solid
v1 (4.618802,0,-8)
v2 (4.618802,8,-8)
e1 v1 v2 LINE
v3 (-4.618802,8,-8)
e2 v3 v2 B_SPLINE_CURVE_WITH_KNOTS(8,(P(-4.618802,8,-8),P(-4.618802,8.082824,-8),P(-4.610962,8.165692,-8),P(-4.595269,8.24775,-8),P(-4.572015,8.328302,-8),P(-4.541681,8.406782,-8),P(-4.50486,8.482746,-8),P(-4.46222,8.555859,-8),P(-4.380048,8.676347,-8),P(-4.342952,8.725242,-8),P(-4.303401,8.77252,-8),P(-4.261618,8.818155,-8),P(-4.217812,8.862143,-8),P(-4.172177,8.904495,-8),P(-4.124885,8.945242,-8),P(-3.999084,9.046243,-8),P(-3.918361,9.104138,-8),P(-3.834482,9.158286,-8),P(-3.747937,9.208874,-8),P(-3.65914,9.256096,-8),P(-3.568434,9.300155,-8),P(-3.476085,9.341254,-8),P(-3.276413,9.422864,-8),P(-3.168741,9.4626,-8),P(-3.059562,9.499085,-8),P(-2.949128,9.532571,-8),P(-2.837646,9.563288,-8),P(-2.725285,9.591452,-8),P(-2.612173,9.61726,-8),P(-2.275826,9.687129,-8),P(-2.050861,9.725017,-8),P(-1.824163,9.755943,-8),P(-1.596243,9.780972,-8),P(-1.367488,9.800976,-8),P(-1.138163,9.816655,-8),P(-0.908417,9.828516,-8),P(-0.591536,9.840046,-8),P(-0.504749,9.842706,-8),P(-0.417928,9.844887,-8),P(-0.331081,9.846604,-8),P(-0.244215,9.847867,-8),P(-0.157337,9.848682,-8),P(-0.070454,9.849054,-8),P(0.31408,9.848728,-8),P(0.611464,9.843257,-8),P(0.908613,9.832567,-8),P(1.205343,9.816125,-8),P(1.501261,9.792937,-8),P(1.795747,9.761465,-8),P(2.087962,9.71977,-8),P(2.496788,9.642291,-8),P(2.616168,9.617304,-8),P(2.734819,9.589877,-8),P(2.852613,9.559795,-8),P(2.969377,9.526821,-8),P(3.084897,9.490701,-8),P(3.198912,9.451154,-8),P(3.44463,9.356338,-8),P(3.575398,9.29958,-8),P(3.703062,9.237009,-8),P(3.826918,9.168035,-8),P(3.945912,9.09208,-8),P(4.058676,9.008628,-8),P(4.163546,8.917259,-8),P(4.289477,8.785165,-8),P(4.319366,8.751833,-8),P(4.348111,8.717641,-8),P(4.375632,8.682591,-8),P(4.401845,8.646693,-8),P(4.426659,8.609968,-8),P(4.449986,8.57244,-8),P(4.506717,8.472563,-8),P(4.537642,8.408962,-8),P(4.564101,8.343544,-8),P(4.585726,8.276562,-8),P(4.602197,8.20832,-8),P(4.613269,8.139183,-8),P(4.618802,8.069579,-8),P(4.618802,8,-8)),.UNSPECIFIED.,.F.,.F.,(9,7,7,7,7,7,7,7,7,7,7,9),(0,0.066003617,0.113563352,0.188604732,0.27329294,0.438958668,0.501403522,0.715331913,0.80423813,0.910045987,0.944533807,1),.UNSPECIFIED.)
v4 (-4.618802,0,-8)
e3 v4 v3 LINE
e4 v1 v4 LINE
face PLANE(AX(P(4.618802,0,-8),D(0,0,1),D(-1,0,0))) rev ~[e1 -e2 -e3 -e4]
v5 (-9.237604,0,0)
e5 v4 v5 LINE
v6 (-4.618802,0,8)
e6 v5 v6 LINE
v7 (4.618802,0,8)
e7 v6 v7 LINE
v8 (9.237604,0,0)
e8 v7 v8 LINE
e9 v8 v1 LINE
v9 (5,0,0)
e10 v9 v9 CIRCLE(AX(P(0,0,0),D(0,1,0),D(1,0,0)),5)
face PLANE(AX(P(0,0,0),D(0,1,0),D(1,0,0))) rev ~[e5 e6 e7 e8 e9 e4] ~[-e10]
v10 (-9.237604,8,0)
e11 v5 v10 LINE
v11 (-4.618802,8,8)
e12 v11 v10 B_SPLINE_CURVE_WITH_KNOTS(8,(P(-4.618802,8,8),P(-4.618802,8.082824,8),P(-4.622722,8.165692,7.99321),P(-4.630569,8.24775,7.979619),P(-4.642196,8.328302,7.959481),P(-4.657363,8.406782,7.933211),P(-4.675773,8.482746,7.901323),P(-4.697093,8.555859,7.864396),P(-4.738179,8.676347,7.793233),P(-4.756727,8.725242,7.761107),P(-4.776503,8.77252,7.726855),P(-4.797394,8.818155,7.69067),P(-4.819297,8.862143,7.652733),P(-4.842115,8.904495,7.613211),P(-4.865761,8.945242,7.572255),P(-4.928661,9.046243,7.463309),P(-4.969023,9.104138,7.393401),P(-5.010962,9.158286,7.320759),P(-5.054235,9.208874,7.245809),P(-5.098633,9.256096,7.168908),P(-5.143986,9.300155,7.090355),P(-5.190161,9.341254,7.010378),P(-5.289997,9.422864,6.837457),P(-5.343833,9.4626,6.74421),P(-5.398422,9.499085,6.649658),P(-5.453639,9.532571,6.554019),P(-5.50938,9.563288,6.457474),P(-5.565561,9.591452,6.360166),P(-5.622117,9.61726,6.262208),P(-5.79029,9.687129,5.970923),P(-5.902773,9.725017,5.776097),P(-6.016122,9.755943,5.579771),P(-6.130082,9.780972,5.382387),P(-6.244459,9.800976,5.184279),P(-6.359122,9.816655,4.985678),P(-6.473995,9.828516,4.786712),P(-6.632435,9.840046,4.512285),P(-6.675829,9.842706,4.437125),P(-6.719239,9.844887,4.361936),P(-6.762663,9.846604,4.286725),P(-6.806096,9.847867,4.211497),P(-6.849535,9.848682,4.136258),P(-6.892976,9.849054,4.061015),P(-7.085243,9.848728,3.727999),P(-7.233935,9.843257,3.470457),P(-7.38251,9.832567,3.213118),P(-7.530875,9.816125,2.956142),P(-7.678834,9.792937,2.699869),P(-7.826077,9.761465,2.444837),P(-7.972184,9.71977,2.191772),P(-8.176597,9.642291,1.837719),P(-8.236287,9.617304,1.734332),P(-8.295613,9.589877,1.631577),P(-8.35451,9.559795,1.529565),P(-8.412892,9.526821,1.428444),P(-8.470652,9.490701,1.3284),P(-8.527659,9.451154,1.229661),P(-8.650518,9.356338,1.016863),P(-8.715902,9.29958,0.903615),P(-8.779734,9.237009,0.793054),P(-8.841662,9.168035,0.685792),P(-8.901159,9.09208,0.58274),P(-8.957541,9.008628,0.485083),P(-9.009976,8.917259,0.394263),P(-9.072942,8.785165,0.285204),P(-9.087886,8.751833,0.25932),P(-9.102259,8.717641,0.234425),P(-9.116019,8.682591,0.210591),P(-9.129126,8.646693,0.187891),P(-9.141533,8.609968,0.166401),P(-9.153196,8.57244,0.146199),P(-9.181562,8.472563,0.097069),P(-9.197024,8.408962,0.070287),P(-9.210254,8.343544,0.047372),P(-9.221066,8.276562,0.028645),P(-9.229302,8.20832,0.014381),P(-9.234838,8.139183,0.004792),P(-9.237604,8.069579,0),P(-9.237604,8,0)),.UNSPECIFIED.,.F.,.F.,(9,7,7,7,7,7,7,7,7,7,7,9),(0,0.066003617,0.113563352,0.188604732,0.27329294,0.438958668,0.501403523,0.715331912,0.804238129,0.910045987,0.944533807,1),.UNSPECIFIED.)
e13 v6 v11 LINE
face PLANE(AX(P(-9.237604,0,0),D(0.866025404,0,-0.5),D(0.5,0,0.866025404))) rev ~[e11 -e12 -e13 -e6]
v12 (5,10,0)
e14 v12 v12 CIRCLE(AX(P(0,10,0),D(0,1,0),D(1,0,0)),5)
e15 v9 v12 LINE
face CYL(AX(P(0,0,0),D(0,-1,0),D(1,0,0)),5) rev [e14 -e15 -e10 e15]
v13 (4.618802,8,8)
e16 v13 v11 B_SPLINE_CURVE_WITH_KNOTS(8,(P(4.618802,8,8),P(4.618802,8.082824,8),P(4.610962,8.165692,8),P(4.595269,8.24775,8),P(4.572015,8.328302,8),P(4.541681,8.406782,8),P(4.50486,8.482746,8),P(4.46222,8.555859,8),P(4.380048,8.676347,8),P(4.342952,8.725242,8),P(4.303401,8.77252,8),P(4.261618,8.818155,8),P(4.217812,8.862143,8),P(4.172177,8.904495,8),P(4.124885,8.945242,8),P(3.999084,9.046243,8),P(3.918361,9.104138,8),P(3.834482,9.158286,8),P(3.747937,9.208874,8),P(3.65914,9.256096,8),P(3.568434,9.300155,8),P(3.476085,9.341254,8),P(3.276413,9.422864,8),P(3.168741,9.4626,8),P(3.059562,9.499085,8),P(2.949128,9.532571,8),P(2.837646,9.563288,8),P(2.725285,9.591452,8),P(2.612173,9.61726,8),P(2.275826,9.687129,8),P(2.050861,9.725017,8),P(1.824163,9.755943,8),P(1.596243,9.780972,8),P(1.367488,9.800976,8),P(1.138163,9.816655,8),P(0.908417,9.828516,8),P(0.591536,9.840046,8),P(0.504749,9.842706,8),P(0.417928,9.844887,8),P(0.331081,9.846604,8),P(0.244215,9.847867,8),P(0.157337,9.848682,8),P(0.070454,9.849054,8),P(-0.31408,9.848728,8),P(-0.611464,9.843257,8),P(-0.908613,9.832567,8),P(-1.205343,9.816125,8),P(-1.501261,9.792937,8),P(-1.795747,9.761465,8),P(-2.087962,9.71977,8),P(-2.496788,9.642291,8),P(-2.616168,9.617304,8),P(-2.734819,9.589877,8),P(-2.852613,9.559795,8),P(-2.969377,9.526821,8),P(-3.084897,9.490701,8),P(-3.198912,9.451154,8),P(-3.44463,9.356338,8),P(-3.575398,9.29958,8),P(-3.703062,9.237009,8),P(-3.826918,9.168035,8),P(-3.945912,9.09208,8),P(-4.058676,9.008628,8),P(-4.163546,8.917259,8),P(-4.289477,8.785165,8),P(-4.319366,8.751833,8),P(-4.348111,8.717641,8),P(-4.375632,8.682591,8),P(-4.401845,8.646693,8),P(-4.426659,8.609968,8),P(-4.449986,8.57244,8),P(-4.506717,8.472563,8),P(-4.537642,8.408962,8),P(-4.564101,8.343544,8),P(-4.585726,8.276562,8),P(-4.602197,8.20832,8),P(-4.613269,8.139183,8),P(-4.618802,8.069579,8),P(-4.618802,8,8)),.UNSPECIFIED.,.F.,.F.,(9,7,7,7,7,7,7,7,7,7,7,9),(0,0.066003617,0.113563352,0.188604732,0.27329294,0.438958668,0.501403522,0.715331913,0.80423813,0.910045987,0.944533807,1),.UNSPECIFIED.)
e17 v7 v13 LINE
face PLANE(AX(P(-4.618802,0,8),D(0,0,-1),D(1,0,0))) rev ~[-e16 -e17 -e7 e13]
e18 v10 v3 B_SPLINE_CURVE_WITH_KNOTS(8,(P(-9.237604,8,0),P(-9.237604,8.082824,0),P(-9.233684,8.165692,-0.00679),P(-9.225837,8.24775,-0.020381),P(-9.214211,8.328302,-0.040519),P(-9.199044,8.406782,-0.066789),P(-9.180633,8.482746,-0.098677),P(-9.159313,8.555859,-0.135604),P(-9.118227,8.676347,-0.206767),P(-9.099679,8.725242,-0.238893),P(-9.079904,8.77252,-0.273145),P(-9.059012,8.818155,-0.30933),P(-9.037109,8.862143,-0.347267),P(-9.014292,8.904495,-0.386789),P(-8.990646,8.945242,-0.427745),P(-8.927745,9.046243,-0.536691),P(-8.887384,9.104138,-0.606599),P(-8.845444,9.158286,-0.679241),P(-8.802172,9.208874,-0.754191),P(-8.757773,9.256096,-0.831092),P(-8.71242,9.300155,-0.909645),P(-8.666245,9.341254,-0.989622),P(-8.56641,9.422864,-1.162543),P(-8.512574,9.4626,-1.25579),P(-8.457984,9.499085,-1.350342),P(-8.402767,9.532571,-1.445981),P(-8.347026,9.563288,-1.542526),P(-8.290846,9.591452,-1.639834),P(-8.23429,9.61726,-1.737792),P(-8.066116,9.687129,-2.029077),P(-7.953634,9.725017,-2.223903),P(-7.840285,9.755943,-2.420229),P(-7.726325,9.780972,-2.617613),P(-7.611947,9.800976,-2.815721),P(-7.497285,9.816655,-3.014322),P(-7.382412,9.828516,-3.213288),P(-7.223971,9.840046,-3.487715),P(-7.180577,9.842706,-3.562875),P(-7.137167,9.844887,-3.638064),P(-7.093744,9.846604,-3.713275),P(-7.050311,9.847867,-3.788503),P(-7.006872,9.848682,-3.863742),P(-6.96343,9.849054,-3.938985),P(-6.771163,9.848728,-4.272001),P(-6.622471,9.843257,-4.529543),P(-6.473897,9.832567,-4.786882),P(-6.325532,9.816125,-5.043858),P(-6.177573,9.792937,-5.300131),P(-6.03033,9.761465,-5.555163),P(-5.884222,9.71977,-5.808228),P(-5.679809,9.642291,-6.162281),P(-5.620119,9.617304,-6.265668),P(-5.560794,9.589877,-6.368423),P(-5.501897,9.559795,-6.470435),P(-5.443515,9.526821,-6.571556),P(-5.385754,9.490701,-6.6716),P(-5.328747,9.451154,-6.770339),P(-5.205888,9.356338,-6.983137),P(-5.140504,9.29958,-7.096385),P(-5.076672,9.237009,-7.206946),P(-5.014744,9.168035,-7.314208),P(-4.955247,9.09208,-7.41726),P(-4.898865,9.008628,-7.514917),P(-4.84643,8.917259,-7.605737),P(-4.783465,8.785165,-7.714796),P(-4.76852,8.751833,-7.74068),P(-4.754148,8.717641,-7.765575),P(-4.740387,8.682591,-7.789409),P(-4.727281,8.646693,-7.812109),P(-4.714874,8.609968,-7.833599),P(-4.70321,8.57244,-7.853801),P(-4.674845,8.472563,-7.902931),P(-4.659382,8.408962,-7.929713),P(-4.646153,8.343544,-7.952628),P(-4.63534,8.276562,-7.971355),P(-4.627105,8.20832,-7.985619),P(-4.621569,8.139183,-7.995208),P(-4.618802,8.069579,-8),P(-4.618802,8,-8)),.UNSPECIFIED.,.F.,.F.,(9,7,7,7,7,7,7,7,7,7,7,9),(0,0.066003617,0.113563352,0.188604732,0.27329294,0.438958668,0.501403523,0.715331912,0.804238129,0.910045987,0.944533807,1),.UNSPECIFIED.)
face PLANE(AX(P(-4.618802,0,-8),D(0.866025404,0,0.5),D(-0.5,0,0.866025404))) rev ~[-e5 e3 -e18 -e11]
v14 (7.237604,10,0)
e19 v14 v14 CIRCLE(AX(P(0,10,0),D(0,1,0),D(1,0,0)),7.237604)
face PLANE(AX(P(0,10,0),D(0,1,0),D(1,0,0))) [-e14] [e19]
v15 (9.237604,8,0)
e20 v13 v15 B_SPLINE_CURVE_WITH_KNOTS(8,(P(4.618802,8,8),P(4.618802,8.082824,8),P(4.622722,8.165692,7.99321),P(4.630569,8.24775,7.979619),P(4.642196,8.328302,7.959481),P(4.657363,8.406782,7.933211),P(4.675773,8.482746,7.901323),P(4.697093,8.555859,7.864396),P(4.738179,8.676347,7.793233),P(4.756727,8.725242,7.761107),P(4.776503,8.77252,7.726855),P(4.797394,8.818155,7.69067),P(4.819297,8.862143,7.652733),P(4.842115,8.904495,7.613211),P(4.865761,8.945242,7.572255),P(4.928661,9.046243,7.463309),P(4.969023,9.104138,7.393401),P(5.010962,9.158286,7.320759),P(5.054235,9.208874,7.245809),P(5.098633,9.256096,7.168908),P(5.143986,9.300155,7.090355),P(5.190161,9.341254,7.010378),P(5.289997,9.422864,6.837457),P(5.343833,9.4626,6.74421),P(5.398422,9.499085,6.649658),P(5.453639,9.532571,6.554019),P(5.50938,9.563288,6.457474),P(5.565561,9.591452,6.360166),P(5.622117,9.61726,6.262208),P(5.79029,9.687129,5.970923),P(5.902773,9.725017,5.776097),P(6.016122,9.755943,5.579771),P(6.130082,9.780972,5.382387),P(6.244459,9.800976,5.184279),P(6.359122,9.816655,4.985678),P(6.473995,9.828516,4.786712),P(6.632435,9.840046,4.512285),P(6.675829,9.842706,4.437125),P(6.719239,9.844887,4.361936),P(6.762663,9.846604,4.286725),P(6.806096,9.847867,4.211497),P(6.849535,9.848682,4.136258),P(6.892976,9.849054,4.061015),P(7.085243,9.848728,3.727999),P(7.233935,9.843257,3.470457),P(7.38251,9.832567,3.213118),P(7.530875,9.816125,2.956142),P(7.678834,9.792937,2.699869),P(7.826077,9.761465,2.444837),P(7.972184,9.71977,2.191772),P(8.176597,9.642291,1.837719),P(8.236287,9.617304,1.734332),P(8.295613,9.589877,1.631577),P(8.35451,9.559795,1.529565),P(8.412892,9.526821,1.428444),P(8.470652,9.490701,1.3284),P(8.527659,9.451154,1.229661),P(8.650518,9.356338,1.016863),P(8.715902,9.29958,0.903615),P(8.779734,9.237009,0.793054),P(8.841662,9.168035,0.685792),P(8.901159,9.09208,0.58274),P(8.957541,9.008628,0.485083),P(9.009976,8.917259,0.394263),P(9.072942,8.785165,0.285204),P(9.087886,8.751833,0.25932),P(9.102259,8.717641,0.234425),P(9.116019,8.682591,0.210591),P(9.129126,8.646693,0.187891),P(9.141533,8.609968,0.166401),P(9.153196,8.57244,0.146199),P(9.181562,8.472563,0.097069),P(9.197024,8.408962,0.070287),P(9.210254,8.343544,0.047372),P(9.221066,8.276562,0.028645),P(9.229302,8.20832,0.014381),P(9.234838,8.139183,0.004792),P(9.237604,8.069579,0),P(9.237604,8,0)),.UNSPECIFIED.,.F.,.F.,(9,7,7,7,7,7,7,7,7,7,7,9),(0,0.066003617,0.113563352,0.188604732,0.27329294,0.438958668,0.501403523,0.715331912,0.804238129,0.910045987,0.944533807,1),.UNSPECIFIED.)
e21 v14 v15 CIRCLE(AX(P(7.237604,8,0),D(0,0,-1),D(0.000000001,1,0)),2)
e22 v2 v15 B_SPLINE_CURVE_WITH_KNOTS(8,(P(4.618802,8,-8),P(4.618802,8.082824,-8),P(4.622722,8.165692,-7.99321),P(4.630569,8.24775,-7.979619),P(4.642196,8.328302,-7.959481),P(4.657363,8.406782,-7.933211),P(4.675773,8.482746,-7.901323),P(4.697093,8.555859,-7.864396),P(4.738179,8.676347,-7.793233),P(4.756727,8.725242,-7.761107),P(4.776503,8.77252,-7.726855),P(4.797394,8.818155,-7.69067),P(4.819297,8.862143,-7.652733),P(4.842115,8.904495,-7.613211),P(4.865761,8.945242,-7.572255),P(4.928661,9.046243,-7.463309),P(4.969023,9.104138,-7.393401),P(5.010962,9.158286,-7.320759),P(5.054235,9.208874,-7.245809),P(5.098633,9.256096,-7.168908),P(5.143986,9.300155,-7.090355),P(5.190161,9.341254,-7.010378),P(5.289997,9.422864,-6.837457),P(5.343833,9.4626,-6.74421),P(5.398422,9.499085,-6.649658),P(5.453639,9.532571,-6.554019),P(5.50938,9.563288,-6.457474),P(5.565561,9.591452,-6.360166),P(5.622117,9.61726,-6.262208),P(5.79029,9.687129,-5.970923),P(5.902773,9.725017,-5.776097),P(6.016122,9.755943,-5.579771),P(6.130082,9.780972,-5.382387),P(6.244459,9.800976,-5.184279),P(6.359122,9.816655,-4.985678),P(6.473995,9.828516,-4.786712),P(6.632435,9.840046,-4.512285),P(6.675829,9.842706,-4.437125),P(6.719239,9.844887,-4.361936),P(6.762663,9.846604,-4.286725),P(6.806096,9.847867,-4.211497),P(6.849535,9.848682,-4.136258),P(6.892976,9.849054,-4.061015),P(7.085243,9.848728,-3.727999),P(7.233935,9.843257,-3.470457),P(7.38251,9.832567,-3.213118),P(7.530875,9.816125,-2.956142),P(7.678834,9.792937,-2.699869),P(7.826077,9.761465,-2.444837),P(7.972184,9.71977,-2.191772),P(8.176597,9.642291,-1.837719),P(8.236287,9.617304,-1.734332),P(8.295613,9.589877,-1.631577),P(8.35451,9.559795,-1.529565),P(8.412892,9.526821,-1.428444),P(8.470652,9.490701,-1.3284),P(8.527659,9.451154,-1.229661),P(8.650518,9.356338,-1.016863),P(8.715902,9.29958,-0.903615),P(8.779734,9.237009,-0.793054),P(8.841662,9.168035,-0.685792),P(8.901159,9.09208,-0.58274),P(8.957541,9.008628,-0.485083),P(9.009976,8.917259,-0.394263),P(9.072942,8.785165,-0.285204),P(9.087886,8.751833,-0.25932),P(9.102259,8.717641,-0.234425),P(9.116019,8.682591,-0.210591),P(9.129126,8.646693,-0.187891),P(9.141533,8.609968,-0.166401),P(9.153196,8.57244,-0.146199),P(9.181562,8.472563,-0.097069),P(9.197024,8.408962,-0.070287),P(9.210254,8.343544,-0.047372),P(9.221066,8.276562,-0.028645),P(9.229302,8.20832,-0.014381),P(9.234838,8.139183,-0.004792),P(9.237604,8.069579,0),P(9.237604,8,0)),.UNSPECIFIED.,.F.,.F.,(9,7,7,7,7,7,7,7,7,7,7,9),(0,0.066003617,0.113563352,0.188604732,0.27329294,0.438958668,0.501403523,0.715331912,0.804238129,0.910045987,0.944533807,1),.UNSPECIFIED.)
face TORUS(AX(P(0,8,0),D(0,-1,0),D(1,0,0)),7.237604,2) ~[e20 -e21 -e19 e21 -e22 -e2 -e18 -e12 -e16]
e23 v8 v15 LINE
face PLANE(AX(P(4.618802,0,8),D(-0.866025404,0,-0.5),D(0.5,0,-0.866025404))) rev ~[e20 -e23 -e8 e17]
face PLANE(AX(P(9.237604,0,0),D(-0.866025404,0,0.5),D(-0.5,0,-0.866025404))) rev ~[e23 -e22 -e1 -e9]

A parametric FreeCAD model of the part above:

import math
import FreeCAD as App
import Part
import Sketcher
from FreeCAD import Vector
Q = App.Units.Quantity

doc = App.newDocument("Part")
body = doc.addObject("PartDesign::Body", "Body")

# Sketch on XZ plane
sketch1 = body.newObject("Sketcher::SketchObject", "Sketch")
sketch1.AttachmentSupport = (doc.getObject("XZ_Plane"), [""])
sketch1.MapMode = "FlatFace"
sketch1.addGeometry([
    Part.LineSegment(Vector(9.237604, 0, 0), Vector(4.618802, -8, 0)),  # 0
    Part.LineSegment(Vector(4.618802, -8, 0), Vector(-4.618802, -8, 0)),  # 1
    Part.LineSegment(Vector(-4.618802, -8, 0), Vector(-9.237604, 0, 0)),  # 2
    Part.LineSegment(Vector(-9.237604, 0, 0), Vector(-4.618802, 8, 0)),  # 3
    Part.LineSegment(Vector(-4.618802, 8, 0), Vector(4.618802, 8, 0)),  # 4
    Part.LineSegment(Vector(4.618802, 8, 0), Vector(9.237604, 0, 0)),  # 5
    Part.Circle(Vector(0, 0, 0), Vector(0, 0, 1), 5),  # 6
], False)
sketch1.addConstraint([
    Sketcher.Constraint("Coincident", 0, 2, 1, 1),
    Sketcher.Constraint("Coincident", 1, 2, 2, 1),
    Sketcher.Constraint("Coincident", 2, 2, 3, 1),
    Sketcher.Constraint("Coincident", 3, 2, 4, 1),
    Sketcher.Constraint("Coincident", 4, 2, 5, 1),
    Sketcher.Constraint("Coincident", 5, 2, 0, 1),
    Sketcher.Constraint("Horizontal", 1),
    Sketcher.Constraint("Horizontal", 4),
    Sketcher.Constraint("Coincident", 6, 3, -1, 1),
    Sketcher.Constraint("Symmetric", 0, 2, 3, 2, -1, 1),
    Sketcher.Constraint("Symmetric", 2, 2, 5, 2, -1, 1),
    Sketcher.Constraint("PointOnObject", 2, 2, -1),
    Sketcher.Constraint("Parallel", 2, 5),
    Sketcher.Constraint("Vertical", 1, 2, 3, 2),
    Sketcher.Constraint("Diameter", 6, Q("10 mm")),
    Sketcher.Constraint("Angle", 0, Q("-120 deg")),
    Sketcher.Constraint("DistanceY", 0, 2, -1, 1, Q("8 mm")),
    Sketcher.Constraint("DistanceX", 1, 2, 1, 1, Q("9.237604 mm")),
])
pad1 = body.newObject("PartDesign::Pad", "Pad")
pad1.Profile = sketch1
pad1.Length = 10
pad1.Reversed = True

# Sketch on XY plane
sketch2 = body.newObject("Sketcher::SketchObject", "Sketch001")
sketch2.AttachmentSupport = (doc.getObject("XY_Plane"), [""])
sketch2.MapMode = "FlatFace"
sketch2.addGeometry([
    Part.LineSegment(Vector(9.237604, 10, 0), Vector(7.237604, 10, 0)),
    Part.ArcOfCircle(Part.Circle(Vector(7.237604, 8, 0), Vector(0, 0, 1), 2), math.radians(0), math.radians(90)),
    Part.LineSegment(Vector(9.237604, 8, 0), Vector(9.237604, 10, 0)),
], False)
sketch2.addConstraint([
    Sketcher.Constraint("Tangent", 0, 2, 1, 2),
    Sketcher.Constraint("Tangent", 1, 1, 2, 1),
    Sketcher.Constraint("Coincident", 2, 2, 0, 1),
    Sketcher.Constraint("Horizontal", 0),
    Sketcher.Constraint("Vertical", 2),
    Sketcher.Constraint("Radius", 1, Q("2 mm")),
    Sketcher.Constraint("DistanceY", -1, 1, 1, 3, Q("8 mm")),
    Sketcher.Constraint("DistanceX", -1, 1, 1, 3, Q("7.237604 mm")),
])
groove = body.newObject("PartDesign::Groove", "Groove")
groove.Profile = sketch2
groove.ReferenceAxis = (sketch2, ["V_Axis"])
groove.Angle = 360

doc.recompute()
